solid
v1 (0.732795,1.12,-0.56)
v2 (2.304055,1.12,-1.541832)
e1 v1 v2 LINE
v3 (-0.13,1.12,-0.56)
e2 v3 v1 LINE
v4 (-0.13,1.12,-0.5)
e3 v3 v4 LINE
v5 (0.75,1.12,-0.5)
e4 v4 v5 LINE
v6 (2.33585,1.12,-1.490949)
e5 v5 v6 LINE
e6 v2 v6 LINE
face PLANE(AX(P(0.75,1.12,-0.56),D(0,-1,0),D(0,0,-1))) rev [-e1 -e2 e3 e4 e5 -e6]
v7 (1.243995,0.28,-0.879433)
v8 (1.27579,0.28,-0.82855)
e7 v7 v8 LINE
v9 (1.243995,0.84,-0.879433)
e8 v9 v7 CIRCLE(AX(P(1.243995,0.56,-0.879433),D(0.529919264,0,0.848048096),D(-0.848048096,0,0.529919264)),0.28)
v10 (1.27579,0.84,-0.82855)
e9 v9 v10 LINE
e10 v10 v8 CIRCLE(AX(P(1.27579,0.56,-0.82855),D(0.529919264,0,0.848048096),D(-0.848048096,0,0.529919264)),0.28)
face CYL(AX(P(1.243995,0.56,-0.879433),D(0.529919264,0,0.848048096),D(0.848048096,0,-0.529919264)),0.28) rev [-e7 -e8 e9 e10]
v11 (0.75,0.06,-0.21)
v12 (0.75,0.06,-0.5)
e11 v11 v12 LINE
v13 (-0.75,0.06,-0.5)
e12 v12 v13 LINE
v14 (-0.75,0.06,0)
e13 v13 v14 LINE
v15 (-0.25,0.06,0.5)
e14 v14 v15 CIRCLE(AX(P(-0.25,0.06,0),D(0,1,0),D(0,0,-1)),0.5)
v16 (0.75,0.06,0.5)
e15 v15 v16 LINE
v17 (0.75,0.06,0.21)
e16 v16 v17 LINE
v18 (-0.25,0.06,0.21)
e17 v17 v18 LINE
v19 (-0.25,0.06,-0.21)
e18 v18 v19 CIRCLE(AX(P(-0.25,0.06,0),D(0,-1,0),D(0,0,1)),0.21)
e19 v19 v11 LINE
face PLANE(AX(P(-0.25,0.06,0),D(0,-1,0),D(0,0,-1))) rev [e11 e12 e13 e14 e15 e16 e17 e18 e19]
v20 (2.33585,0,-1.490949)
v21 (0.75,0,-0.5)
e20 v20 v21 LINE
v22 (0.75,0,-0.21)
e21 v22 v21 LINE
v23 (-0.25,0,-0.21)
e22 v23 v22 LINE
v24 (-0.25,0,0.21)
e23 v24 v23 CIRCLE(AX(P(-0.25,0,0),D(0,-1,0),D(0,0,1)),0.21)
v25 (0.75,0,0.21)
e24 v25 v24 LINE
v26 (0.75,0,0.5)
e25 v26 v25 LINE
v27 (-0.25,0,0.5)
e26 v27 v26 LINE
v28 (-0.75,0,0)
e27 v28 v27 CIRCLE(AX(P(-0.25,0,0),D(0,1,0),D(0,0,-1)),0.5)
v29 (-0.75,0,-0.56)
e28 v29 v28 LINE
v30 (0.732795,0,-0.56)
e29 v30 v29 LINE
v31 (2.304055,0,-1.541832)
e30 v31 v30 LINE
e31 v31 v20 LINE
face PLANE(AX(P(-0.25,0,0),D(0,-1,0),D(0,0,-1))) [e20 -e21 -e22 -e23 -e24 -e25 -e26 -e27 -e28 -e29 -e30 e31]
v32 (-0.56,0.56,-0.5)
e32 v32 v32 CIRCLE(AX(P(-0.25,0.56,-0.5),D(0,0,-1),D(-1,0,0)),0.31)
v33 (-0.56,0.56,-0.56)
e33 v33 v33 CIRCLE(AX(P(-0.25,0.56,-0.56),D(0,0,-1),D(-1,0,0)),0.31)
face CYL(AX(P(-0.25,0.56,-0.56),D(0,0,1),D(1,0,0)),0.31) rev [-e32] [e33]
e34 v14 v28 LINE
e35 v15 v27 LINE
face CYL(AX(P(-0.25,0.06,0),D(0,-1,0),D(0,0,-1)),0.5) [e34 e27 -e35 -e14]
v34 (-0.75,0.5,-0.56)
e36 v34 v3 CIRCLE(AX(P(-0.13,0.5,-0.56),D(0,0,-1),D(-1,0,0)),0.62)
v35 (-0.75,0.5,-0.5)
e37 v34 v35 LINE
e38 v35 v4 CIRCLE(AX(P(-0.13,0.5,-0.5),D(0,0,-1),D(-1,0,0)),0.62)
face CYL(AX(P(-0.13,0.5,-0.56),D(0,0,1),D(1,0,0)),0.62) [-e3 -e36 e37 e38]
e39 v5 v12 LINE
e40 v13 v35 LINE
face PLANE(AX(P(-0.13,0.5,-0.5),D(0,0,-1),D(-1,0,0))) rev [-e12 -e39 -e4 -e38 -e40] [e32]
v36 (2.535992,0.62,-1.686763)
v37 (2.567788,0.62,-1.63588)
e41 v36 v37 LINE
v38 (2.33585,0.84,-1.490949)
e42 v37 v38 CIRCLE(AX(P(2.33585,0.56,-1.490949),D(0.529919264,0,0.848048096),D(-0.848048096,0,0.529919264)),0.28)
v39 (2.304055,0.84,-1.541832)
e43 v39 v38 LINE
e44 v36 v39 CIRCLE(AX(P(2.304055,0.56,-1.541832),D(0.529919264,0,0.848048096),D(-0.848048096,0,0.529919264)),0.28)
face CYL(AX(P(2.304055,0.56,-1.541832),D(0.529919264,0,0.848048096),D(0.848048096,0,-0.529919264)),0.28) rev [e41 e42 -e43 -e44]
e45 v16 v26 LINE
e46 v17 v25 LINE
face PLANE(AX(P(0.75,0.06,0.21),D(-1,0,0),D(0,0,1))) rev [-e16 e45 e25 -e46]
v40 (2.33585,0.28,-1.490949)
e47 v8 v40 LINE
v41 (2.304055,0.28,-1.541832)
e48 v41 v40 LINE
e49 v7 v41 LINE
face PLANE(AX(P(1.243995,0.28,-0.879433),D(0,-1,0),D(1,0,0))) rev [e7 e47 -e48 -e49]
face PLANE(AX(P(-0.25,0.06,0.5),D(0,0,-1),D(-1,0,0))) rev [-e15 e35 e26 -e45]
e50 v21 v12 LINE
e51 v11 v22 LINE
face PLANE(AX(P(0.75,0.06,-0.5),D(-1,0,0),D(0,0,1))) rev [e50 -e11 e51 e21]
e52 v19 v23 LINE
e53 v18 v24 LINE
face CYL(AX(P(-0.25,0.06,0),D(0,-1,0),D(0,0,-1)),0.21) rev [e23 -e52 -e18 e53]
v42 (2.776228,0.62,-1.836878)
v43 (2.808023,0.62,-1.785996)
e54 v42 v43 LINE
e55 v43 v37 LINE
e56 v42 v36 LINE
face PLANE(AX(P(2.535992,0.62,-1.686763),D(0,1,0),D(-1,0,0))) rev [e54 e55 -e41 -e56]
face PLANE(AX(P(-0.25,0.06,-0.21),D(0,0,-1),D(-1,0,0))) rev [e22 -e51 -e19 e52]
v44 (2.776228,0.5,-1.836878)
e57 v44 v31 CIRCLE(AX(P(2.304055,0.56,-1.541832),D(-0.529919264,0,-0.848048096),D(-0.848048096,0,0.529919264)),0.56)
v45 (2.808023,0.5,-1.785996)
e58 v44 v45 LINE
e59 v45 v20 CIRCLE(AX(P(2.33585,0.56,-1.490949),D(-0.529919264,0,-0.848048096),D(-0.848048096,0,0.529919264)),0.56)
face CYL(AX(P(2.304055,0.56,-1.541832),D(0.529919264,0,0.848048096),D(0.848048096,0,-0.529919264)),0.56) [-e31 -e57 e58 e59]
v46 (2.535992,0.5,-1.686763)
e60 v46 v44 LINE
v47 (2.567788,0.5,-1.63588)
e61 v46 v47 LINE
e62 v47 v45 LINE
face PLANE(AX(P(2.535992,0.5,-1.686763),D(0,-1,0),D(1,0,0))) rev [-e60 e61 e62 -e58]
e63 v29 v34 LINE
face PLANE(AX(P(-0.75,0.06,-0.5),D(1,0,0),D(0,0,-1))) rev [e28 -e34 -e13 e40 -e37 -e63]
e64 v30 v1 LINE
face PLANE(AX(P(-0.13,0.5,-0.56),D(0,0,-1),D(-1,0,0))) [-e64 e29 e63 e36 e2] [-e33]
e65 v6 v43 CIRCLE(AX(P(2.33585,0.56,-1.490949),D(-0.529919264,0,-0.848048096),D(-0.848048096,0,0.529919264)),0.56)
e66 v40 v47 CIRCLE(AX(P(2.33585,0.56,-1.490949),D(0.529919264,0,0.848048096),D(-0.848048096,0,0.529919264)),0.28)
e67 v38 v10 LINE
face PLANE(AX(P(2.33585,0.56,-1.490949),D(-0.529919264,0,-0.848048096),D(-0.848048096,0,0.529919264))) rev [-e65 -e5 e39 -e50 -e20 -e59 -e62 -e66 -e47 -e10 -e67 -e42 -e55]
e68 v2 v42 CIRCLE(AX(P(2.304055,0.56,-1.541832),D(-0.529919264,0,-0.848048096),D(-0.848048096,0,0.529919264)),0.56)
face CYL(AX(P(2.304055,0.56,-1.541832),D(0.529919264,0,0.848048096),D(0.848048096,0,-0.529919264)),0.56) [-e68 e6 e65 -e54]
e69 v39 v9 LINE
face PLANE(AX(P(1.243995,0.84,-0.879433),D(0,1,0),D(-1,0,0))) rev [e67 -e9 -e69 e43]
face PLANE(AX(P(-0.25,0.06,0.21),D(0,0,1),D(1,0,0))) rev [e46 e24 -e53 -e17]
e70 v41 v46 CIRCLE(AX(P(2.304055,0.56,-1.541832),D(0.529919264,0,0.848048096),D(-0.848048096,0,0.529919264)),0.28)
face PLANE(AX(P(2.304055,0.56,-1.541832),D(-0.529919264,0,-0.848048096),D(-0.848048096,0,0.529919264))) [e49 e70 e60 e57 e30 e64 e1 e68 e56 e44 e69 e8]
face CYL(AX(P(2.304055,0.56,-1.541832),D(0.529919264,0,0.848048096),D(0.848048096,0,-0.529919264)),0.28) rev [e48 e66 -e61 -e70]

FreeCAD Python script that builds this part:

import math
import FreeCAD as App
import Part
import Sketcher

V = App.Vector
Q = App.Units.Quantity

doc = App.newDocument("Part")
body = doc.addObject("PartDesign::Body", "Body")

sketch1 = body.newObject("Sketcher::SketchObject", "Sketch")
sketch1.AttachmentSupport = (doc.getObject("XZ_Plane"), [""])
sketch1.MapMode = "FlatFace"
sketch1.addGeometry(Part.LineSegment(V(0.75, -0.5, 0), V(-0.75, -0.5, 0)), False)
sketch1.addGeometry(Part.LineSegment(V(-0.75, -0.5, 0), V(-0.75, 0, 0)), False)
sketch1.addGeometry(Part.ArcOfCircle(Part.Circle(V(-0.25, 0, 0), V(0, 0, 1), 0.5), math.radians(90), math.radians(180)), False)
sketch1.addGeometry(Part.LineSegment(V(-0.25, 0.5, 0), V(0.75, 0.5, 0)), False)
sketch1.addGeometry(Part.LineSegment(V(0.75, 0.5, 0), V(0.75, 0.21, 0)), False)
sketch1.addGeometry(Part.LineSegment(V(0.75, 0.21, 0), V(-0.25, 0.21, 0)), False)
sketch1.addGeometry(Part.ArcOfCircle(Part.Circle(V(-0.25, 0, 0), V(0, 0, 1), 0.21), math.radians(90), math.radians(270)), False)
sketch1.addGeometry(Part.LineSegment(V(-0.25, -0.21, 0), V(0.75, -0.21, 0)), False)
sketch1.addGeometry(Part.LineSegment(V(0.75, -0.21, 0), V(0.75, -0.5, 0)), False)
sketch1.addConstraint(Sketcher.Constraint("Coincident", 0, 2, 1, 1))
sketch1.addConstraint(Sketcher.Constraint("Tangent", 1, 2, 2, 2))
sketch1.addConstraint(Sketcher.Constraint("Tangent", 2, 1, 3, 1))
sketch1.addConstraint(Sketcher.Constraint("Coincident", 3, 2, 4, 1))
sketch1.addConstraint(Sketcher.Constraint("Coincident", 4, 2, 5, 1))
sketch1.addConstraint(Sketcher.Constraint("Tangent", 5, 2, 6, 1))
sketch1.addConstraint(Sketcher.Constraint("Tangent", 6, 2, 7, 1))
sketch1.addConstraint(Sketcher.Constraint("Coincident", 7, 2, 8, 1))
sketch1.addConstraint(Sketcher.Constraint("Coincident", 8, 2, 0, 1))
sketch1.addConstraint(Sketcher.Constraint("Horizontal", 0))
sketch1.addConstraint(Sketcher.Constraint("Vertical", 1))
sketch1.addConstraint(Sketcher.Constraint("Horizontal", 3))
sketch1.addConstraint(Sketcher.Constraint("Vertical", 4))
sketch1.addConstraint(Sketcher.Constraint("Horizontal", 5))
sketch1.addConstraint(Sketcher.Constraint("Horizontal", 7))
sketch1.addConstraint(Sketcher.Constraint("Vertical", 8))
sketch1.addConstraint(Sketcher.Constraint("Coincident", 6, 3, 2, 3))
sketch1.addConstraint(Sketcher.Constraint("Symmetric", 0, 2, 3, 2, -1, 1))
sketch1.addConstraint(Sketcher.Constraint("Symmetric", 4, 2, 7, 2, -1))
sketch1.addConstraint(Sketcher.Constraint("Radius", 2, Q("0.5 mm")))
sketch1.addConstraint(Sketcher.Constraint("DistanceX", 3, 1, 3, 2, Q("1 mm")))
sketch1.addConstraint(Sketcher.Constraint("Radius", 6, Q("0.21 mm")))
pad1 = body.newObject("PartDesign::Pad", "Pad")
pad1.Profile = sketch1
pad1.Length = 0.06
pad1.Reversed = True

sketch2 = body.newObject("Sketcher::SketchObject", "Sketch001")
sketch2.AttachmentSupport = (doc.getObject("XY_Plane"), [""])
sketch2.MapMode = "FlatFace"
sketch2.AttachmentOffset = App.Placement(V(0, 0, -0.5), App.Rotation())
sketch2.addGeometry(Part.LineSegment(V(0.75, 0, 0), V(-0.75, 0, 0)), False)
sketch2.addGeometry(Part.LineSegment(V(-0.75, 0, 0), V(-0.75, 0.5, 0)), False)
sketch2.addGeometry(Part.ArcOfCircle(Part.Circle(V(-0.13, 0.5, 0), V(0, 0, 1), 0.62), math.radians(90), math.radians(180)), False)
sketch2.addGeometry(Part.LineSegment(V(-0.13, 1.12, 0), V(0.75, 1.12, 0)), False)
sketch2.addGeometry(Part.LineSegment(V(0.75, 1.12, 0), V(0.75, 0, 0)), False)
sketch2.addGeometry(Part.Circle(V(-0.25, 0.56, 0), V(0, 0, 1), 0.31), False)
sketch2.addConstraint(Sketcher.Constraint("Coincident", 0, 2, 1, 1))
sketch2.addConstraint(Sketcher.Constraint("Tangent", 1, 2, 2, 2))
sketch2.addConstraint(Sketcher.Constraint("Tangent", 2, 1, 3, 1))
sketch2.addConstraint(Sketcher.Constraint("Coincident", 3, 2, 4, 1))
sketch2.addConstraint(Sketcher.Constraint("Coincident", 4, 2, 0, 1))
sketch2.addConstraint(Sketcher.Constraint("Horizontal", 0))
sketch2.addConstraint(Sketcher.Constraint("Vertical", 1))
sketch2.addConstraint(Sketcher.Constraint("Horizontal", 3))
sketch2.addConstraint(Sketcher.Constraint("Vertical", 4))
sketch2.addConstraint(Sketcher.Constraint("Symmetric", 0, 2, 4, 2, -1, 1))
sketch2.addConstraint(Sketcher.Constraint("Diameter", 5, Q("0.62 mm")))
sketch2.addConstraint(Sketcher.Constraint("Radius", 2, Q("0.62 mm")))
sketch2.addConstraint(Sketcher.Constraint("DistanceX", 0, 2, 0, 1, Q("1.5 mm")))
sketch2.addConstraint(Sketcher.Constraint("DistanceY", 1, 1, 1, 2, Q("0.5 mm")))
sketch2.addConstraint(Sketcher.Constraint("DistanceX", 5, 3, 3, 2, Q("1 mm")))
sketch2.addConstraint(Sketcher.Constraint("DistanceY", -1, 1, 5, 3, Q("0.56 mm")))
pad2 = body.newObject("PartDesign::Pad", "Pad001")
pad2.Profile = sketch2
pad2.Length = 0.06
pad2.Reversed = True

sketch3 = body.newObject("Sketcher::SketchObject", "Sketch002")
sketch3.Placement = App.Placement(V(-0.014088, 0, -0.022545), App.Rotation(V(-0.848048096, 0, 0.529919264), V(0, 0.999999999, 0), V(-0.529919264, 0, -0.848048096), "ZXY"))
sketch3.addGeometry(Part.LineSegment(V(-0.9, 1.12, 0), V(-2.77, 1.12, 0)), False)
sketch3.addGeometry(Part.ArcOfCircle(Part.Circle(V(-2.77, 0.56, 0), V(0, 0, 1), 0.56), math.radians(90), math.radians(174)), False)
sketch3.addGeometry(Part.LineSegment(V(-3.33, 0.62, 0), V(-3.04, 0.62, 0)), False)
sketch3.addGeometry(Part.ArcOfCircle(Part.Circle(V(-2.77, 0.56, 0), V(0, 0, 1), 0.28), math.radians(90), math.radians(168)), False)
sketch3.addGeometry(Part.LineSegment(V(-2.77, 0.84, 0), V(-1.52, 0.84, 0)), False)
sketch3.addGeometry(Part.ArcOfCircle(Part.Circle(V(-1.52, 0.56, 0), V(0, 0, 1), 0.28), math.radians(-90), math.radians(90)), False)
sketch3.addGeometry(Part.LineSegment(V(-1.52, 0.28, 0), V(-2.77, 0.28, 0)), False)
sketch3.addGeometry(Part.ArcOfCircle(Part.Circle(V(-2.77, 0.56, 0), V(0, 0, 1), 0.28), math.radians(-168), math.radians(-90)), False)
sketch3.addGeometry(Part.LineSegment(V(-3.04, 0.5, 0), V(-3.33, 0.5, 0)), False)
sketch3.addGeometry(Part.ArcOfCircle(Part.Circle(V(-2.77, 0.56, 0), V(0, 0, 1), 0.56), math.radians(-174), math.radians(-90)), False)
sketch3.addGeometry(Part.LineSegment(V(-2.77, 0, 0), V(-0.9, 0, 0)), False)
sketch3.addGeometry(Part.LineSegment(V(-0.9, 0, 0), V(-0.9, 1.12, 0)), False)
sketch3.addConstraint(Sketcher.Constraint("Tangent", 0, 2, 1, 1))
sketch3.addConstraint(Sketcher.Constraint("Coincident", 1, 2, 2, 1))
sketch3.addConstraint(Sketcher.Constraint("Coincident", 2, 2, 3, 2))
sketch3.addConstraint(Sketcher.Constraint("Tangent", 3, 1, 4, 1))
sketch3.addConstraint(Sketcher.Constraint("Tangent", 4, 2, 5, 2))
sketch3.addConstraint(Sketcher.Constraint("Tangent", 5, 1, 6, 1))
sketch3.addConstraint(Sketcher.Constraint("Tangent", 6, 2, 7, 2))
sketch3.addConstraint(Sketcher.Constraint("Coincident", 7, 1, 8, 1))
sketch3.addConstraint(Sketcher.Constraint("Coincident", 8, 2, 9, 1))
sketch3.addConstraint(Sketcher.Constraint("Tangent", 9, 2, 10, 1))
sketch3.addConstraint(Sketcher.Constraint("Coincident", 10, 2, 11, 1))
sketch3.addConstraint(Sketcher.Constraint("Coincident", 11, 2, 0, 1))
sketch3.addConstraint(Sketcher.Constraint("Horizontal", 0))
sketch3.addConstraint(Sketcher.Constraint("Horizontal", 2))
sketch3.addConstraint(Sketcher.Constraint("Horizontal", 4))
sketch3.addConstraint(Sketcher.Constraint("Horizontal", 6))
sketch3.addConstraint(Sketcher.Constraint("Horizontal", 8))
sketch3.addConstraint(Sketcher.Constraint("Horizontal", 10))
sketch3.addConstraint(Sketcher.Constraint("Vertical", 11))
sketch3.addConstraint(Sketcher.Constraint("Coincident", 3, 3, 1, 3))
sketch3.addConstraint(Sketcher.Constraint("Coincident", 7, 3, 1, 3))
sketch3.addConstraint(Sketcher.Constraint("Coincident", 9, 3, 1, 3))
sketch3.addConstraint(Sketcher.Constraint("Equal", 3, 5))
sketch3.addConstraint(Sketcher.Constraint("Equal", 1, 9))
sketch3.addConstraint(Sketcher.Constraint("PointOnObject", 9, 2, -1))
sketch3.addConstraint(Sketcher.Constraint("Vertical", 2, 2, 7, 1))
sketch3.addConstraint(Sketcher.Constraint("Radius", 1, Q("0.56 mm")))
sketch3.addConstraint(Sketcher.Constraint("Radius", 3, Q("0.28 mm")))
sketch3.addConstraint(Sketcher.Constraint("DistanceX", 0, 2, 0, 1, Q("1.87 mm")))
sketch3.addConstraint(Sketcher.Constraint("DistanceX", 4, 1, 4, 2, Q("1.25 mm")))
sketch3.addConstraint(Sketcher.Constraint("DistanceY", -1, 1, 7, 1, Q("0.5 mm")))
sketch3.addConstraint(Sketcher.Constraint("DistanceX", 2, 2, -1, 1, Q("3.044492 mm")))
pad3 = body.newObject("PartDesign::Pad", "Pad002")
pad3.Profile = sketch3
pad3.Length = 0.06

doc.recompute()
